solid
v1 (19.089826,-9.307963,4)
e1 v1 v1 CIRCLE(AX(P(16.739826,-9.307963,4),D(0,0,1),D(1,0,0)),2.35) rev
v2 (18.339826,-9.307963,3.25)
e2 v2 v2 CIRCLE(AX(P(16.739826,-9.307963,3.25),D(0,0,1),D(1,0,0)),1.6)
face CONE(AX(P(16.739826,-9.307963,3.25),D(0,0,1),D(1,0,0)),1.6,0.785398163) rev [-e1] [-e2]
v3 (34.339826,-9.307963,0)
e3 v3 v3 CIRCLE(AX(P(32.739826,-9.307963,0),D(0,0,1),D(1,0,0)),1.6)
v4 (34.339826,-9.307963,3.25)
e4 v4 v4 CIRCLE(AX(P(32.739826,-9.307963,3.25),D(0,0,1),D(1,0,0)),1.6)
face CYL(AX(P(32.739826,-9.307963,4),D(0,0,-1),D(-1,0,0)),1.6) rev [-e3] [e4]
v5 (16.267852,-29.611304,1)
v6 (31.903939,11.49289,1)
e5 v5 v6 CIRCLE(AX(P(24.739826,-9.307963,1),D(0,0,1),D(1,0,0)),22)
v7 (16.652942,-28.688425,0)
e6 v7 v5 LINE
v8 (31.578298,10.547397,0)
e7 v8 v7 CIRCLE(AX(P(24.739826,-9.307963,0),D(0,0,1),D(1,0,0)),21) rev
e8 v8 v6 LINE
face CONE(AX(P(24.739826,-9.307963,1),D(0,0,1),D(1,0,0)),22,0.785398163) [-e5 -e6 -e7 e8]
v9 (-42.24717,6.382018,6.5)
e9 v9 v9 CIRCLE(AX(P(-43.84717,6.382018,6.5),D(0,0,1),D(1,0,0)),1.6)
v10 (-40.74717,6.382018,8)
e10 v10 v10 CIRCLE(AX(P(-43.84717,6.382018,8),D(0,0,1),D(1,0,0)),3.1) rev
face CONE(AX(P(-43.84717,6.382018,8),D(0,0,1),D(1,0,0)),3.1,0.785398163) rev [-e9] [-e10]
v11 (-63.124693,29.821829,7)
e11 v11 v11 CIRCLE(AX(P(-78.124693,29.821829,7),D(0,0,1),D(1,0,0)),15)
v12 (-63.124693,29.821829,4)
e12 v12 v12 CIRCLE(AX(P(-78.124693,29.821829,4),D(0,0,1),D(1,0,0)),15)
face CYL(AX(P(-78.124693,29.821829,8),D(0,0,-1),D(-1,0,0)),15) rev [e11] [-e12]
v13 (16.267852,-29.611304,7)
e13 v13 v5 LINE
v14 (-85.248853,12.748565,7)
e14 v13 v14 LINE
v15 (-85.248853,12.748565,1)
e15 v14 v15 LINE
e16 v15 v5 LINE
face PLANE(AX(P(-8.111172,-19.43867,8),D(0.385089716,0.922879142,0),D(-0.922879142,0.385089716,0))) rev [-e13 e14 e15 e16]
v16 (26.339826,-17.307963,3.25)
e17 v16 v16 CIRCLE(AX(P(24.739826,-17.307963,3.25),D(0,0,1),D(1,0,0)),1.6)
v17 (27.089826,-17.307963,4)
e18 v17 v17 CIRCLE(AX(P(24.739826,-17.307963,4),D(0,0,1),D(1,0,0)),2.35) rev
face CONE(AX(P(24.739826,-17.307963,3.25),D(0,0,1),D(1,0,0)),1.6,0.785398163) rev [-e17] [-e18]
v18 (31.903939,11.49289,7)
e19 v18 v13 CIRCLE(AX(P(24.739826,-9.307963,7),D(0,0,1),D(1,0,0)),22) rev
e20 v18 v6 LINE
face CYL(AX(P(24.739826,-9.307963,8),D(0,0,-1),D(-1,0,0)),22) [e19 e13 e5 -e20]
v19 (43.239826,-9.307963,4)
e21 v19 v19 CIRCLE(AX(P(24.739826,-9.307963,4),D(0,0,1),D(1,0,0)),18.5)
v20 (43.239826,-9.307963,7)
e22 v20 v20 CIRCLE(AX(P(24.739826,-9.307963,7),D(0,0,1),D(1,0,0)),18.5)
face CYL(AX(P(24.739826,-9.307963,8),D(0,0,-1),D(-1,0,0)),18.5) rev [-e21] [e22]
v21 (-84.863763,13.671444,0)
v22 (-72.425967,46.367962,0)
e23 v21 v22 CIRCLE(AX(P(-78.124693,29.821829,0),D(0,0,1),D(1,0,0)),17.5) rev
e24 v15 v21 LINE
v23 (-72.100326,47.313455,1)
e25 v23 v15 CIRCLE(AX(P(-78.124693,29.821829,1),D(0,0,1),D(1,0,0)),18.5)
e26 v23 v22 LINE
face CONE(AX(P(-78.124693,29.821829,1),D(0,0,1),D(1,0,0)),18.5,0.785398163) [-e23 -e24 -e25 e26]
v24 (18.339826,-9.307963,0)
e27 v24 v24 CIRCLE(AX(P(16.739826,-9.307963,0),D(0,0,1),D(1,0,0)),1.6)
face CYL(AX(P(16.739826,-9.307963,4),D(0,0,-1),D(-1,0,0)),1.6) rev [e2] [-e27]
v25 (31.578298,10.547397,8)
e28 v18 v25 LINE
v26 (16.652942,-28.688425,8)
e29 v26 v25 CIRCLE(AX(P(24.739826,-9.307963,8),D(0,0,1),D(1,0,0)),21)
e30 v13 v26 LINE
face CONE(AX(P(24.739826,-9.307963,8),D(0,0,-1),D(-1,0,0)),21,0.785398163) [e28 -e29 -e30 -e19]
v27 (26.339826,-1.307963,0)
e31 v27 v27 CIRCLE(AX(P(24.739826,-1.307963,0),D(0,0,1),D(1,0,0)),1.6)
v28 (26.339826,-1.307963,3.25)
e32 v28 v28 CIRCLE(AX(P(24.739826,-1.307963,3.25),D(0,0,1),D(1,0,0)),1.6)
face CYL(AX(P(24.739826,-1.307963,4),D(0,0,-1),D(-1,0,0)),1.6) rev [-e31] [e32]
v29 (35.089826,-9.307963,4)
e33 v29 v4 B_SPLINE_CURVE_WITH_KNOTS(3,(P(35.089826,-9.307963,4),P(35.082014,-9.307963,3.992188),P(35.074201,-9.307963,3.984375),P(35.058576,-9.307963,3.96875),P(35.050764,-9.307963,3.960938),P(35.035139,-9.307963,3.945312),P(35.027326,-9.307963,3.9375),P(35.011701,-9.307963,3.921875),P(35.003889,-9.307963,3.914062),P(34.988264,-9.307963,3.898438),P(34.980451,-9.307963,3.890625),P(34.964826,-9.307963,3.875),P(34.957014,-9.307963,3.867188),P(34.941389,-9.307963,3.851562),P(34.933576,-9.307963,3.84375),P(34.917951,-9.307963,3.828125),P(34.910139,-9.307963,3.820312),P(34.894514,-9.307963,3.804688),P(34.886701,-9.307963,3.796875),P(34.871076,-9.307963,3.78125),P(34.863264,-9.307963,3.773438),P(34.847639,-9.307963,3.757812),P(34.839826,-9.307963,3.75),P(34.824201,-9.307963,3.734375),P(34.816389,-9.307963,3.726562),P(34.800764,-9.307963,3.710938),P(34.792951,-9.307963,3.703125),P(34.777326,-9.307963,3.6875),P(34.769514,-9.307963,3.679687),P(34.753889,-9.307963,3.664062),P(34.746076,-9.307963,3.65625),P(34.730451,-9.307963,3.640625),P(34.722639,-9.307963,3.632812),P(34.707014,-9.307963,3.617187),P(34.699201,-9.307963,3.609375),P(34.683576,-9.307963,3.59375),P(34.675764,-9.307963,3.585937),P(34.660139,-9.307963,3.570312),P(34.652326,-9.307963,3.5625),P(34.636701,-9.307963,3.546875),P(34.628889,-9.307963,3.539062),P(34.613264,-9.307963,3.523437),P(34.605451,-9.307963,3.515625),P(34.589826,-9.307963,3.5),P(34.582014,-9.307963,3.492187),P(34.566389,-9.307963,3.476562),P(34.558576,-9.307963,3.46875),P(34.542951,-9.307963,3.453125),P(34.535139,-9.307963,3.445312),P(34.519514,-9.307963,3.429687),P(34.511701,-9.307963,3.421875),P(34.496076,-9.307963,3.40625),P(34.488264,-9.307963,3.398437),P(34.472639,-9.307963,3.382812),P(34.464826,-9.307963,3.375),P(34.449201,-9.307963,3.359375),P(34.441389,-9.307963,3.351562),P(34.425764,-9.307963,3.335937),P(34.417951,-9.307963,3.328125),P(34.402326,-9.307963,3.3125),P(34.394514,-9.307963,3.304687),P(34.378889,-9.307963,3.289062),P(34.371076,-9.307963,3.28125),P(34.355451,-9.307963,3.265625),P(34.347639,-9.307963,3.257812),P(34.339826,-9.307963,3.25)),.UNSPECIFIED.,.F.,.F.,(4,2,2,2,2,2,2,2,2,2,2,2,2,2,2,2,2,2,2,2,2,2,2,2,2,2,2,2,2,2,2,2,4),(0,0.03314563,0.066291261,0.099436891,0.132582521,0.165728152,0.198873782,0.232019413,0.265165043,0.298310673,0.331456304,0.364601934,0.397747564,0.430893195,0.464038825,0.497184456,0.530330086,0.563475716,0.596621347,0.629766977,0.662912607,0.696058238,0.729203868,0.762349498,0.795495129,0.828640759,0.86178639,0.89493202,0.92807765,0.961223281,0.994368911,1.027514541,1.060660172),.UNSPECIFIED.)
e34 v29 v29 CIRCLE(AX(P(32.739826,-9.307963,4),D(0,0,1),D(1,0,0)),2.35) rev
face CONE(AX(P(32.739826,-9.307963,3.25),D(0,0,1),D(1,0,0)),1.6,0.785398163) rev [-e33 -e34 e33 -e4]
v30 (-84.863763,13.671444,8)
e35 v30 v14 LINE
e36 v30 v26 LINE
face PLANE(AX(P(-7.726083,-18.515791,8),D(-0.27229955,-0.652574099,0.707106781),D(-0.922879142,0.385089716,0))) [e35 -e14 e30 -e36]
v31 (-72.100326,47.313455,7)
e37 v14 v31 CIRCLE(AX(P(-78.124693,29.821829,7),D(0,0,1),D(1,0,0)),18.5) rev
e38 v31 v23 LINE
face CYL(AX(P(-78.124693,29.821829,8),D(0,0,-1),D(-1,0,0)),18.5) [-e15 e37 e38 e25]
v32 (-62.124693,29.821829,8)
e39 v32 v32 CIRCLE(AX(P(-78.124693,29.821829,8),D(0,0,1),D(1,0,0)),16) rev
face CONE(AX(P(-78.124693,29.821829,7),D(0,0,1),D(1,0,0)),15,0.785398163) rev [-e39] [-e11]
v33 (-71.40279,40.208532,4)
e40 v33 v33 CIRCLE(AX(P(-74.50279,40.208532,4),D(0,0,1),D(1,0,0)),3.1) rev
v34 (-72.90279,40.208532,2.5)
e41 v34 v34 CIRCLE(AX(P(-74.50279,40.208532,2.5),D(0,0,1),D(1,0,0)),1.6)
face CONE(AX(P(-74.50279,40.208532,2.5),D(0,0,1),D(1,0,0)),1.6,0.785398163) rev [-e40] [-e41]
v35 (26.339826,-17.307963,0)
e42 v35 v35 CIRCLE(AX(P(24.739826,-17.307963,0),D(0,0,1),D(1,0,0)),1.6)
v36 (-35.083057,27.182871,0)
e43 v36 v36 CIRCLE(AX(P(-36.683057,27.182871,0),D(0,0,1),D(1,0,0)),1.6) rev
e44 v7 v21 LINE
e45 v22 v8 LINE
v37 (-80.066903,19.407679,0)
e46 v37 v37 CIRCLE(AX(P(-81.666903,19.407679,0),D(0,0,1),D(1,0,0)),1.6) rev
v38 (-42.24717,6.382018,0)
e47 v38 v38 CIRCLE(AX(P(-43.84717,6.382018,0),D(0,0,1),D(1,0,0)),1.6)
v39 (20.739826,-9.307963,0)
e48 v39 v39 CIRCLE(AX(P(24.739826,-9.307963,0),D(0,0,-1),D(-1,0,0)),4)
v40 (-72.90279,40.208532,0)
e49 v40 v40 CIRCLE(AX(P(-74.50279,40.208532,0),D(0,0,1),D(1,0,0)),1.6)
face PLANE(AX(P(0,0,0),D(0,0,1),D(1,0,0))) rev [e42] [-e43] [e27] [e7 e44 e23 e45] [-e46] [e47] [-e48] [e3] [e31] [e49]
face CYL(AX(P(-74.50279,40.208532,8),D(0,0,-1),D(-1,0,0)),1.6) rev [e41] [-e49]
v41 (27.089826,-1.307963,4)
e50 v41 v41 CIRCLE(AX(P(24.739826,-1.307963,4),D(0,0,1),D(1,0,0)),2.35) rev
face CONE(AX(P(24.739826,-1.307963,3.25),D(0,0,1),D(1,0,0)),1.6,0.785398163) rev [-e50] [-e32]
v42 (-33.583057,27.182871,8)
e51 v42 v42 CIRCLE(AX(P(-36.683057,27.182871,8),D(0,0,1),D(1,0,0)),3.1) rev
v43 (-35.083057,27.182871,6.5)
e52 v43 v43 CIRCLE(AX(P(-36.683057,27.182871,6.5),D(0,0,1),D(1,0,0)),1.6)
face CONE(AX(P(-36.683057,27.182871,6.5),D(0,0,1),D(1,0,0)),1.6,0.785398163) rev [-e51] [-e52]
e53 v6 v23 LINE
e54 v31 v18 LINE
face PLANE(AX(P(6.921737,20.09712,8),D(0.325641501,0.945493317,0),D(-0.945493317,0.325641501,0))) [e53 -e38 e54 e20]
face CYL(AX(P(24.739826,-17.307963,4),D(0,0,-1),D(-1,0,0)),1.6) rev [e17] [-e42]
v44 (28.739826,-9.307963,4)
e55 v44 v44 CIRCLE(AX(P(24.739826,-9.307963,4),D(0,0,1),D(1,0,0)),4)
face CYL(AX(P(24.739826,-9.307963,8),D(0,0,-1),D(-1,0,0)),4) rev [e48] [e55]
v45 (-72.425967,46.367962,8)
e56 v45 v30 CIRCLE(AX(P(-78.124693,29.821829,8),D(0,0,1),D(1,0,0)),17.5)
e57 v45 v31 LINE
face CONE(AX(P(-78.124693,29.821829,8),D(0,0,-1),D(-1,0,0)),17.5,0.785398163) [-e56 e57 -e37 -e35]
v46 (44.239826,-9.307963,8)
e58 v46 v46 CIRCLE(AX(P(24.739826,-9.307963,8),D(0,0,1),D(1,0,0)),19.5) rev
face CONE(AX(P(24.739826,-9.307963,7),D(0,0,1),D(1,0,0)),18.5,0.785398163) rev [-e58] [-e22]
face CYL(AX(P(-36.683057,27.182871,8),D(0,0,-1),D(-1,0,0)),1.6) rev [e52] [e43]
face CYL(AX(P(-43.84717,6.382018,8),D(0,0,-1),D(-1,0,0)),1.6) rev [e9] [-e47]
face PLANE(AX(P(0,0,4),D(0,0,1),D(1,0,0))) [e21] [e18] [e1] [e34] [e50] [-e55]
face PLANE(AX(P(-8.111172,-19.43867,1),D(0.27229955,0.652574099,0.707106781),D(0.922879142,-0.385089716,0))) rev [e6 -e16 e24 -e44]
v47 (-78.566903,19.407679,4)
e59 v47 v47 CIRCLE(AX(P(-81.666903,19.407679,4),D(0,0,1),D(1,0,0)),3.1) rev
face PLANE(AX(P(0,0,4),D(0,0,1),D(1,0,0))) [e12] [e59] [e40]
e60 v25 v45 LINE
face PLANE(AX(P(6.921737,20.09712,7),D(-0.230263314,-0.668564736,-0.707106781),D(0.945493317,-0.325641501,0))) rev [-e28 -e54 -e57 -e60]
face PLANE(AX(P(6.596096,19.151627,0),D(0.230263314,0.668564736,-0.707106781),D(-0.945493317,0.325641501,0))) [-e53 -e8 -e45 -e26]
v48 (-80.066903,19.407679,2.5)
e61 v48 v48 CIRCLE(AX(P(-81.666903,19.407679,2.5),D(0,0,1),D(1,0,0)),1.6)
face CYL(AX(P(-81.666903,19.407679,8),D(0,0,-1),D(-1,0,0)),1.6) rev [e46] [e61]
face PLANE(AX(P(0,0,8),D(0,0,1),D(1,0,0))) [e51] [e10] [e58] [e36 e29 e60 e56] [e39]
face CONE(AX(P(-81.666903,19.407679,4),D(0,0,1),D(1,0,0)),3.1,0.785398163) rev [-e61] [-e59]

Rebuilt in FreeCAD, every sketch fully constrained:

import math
import FreeCAD as App
import Part
import Sketcher


def edges_at(feature, points):
    """Names of the edges that pass closest to the given points."""
    edges = feature.Shape.Edges
    near = lambda p: min(range(len(edges)), key=lambda i: edges[i].distToShape(Part.Vertex(*p))[0])
    return sorted({f"Edge{near(p) + 1}" for p in points})

doc = App.newDocument("Part")
body = doc.addObject("PartDesign::Body", "Body")

sketch1 = doc.addObject("Sketcher::SketchObject", "Sketch")
body.addObject(sketch1)
sketch1.AttachmentSupport = (doc.XY_Plane, [""])
sketch1.MapMode = "FlatFace"
sketch1.addGeometry([
    Part.LineSegment(App.Vector(-85.248853, 12.748565, 0), App.Vector(16.267852, -29.611304, 0)),
    Part.ArcOfCircle(Part.Circle(App.Vector(24.739826, -9.307963, 0), App.Vector(0, 0, 1), 22), math.radians(-112.64931), math.radians(70.995555)),
    Part.LineSegment(App.Vector(31.903939, 11.49289, 0), App.Vector(-72.100326, 47.313455, 0)),
    Part.ArcOfCircle(Part.Circle(App.Vector(-78.124693, 29.821829, 0), App.Vector(0, 0, 1), 18.5), math.radians(70.995555), math.radians(247.35069)),
    Part.Circle(App.Vector(24.739826, -9.307963, 0), App.Vector(0, 0, 1), 18.5),
    Part.Circle(App.Vector(-78.124693, 29.821829, 0), App.Vector(0, 0, 1), 15),
], False)
sketch1.addConstraint([
    Sketcher.Constraint("Tangent", 0, 2, 1, 1),
    Sketcher.Constraint("Tangent", 1, 2, 2, 1),
    Sketcher.Constraint("Tangent", 2, 2, 3, 1),
    Sketcher.Constraint("Tangent", 3, 2, 0, 1),
    Sketcher.Constraint("Coincident", 4, 3, 1, 3),
    Sketcher.Constraint("Coincident", 5, 3, 3, 3),
    Sketcher.Constraint("Equal", 3, 4),
    Sketcher.Constraint("Diameter", 4, 37.0),
    Sketcher.Constraint("Diameter", 5, 30.0),
    Sketcher.Constraint("Radius", 1, 22.0),
    Sketcher.Constraint("Distance", 0, 110.0),
    Sketcher.Constraint("DistanceY", -1, 1, 3, 3, 29.821829),
    Sketcher.Constraint("DistanceX", -1, 1, 1, 2, 31.903939),
    Sketcher.Constraint("DistanceY", -1, 1, 1, 2, 11.49289),
])
pad1 = doc.addObject("PartDesign::Pad", "Pad")
body.addObject(pad1)
pad1.Profile = sketch1
pad1.Length = 8

sketch2 = doc.addObject("Sketcher::SketchObject", "Sketch001")
body.addObject(sketch2)
sketch2.AttachmentSupport = (doc.XY_Plane, [""])
sketch2.MapMode = "FlatFace"
sketch2.addGeometry([
    Part.Circle(App.Vector(24.739826, -9.307963, 0), App.Vector(0, 0, 1), 18.5),
    Part.Circle(App.Vector(24.739826, -17.307963, 0), App.Vector(0, 0, 1), 1.6),
    Part.Circle(App.Vector(16.739826, -9.307963, 0), App.Vector(0, 0, 1), 1.6),
    Part.Circle(App.Vector(32.739826, -9.307963, 0), App.Vector(0, 0, 1), 1.6),
    Part.Circle(App.Vector(24.739826, -1.307963, 0), App.Vector(0, 0, 1), 1.6),
    Part.Circle(App.Vector(-78.124693, 29.821829, 0), App.Vector(0, 0, 1), 15),
], False)
sketch2.addConstraint([
    Sketcher.Constraint("Equal", 1, 2),
    Sketcher.Constraint("Equal", 2, 3),
    Sketcher.Constraint("Equal", 3, 4),
    Sketcher.Constraint("Horizontal", 0, 3, 2, 3),
    Sketcher.Constraint("Horizontal", 2, 3, 3, 3),
    Sketcher.Constraint("Vertical", 0, 3, 1, 3),
    Sketcher.Constraint("Vertical", 1, 3, 4, 3),
    Sketcher.Constraint("Diameter", 0, 37.0),
    Sketcher.Constraint("Diameter", 5, 30.0),
    Sketcher.Constraint("Diameter", 1, 3.2),
    Sketcher.Constraint("DistanceY", 1, 3, 0, 3, 8.0),
    Sketcher.Constraint("DistanceX", 2, 3, 0, 3, 8.0),
    Sketcher.Constraint("DistanceX", 0, 3, 3, 3, 8.0),
    Sketcher.Constraint("DistanceY", 0, 3, 4, 3, 8.0),
    Sketcher.Constraint("DistanceY", -1, 1, 5, 3, 29.821829),
    Sketcher.Constraint("DistanceX", 5, 3, 2, 3, 94.86452),
    Sketcher.Constraint("DistanceY", 2, 3, 5, 3, 39.129792),
    Sketcher.Constraint("DistanceX", -1, 1, 0, 3, 24.739826),
])
pad2 = doc.addObject("PartDesign::Pad", "Pad001")
body.addObject(pad2)
pad2.Profile = sketch2
pad2.Length = 4
doc.recompute()

chamfer = doc.addObject("PartDesign::Chamfer", "Chamfer")
body.addObject(chamfer)
chamfer.Base = (pad2, edges_at(pad2, [
    (23.14, -17.308, 4),
    (31.14, -9.308, 4),
    (15.14, -9.308, 4),
    (23.14, -1.308, 4),
]))
chamfer.Size = 0.75
doc.recompute()

chamfer2 = doc.addObject("PartDesign::Chamfer", "Chamfer001")
body.addObject(chamfer2)
chamfer2.Base = (chamfer, edges_at(chamfer, [(6.24, -9.308, 8), (-93.125, 29.822, 8)]))
chamfer2.Size = 1

sketch3 = doc.addObject("Sketcher::SketchObject", "Sketch002")
body.addObject(sketch3)
sketch3.AttachmentSupport = (doc.XY_Plane, [""])
sketch3.MapMode = "FlatFace"
sketch3.addGeometry(Part.Circle(App.Vector(24.739826, -9.307963, 0), App.Vector(0, 0, 1), 4), False)
sketch3.addConstraint([
    Sketcher.Constraint("Diameter", 0, 8.0),
    Sketcher.Constraint("DistanceX", -1, 1, 0, 3, 24.739826),
    Sketcher.Constraint("DistanceY", 0, 3, -1, 1, 9.307963),
])
pocket1 = doc.addObject("PartDesign::Pocket", "Pocket")
body.addObject(pocket1)
pocket1.Profile = sketch3
pocket1.Type = "ThroughAll"
pocket1.Reversed = True

sketch4 = doc.addObject("Sketcher::SketchObject", "Sketch003")
body.addObject(sketch4)
sketch4.AttachmentSupport = (doc.XY_Plane, [""])
sketch4.MapMode = "FlatFace"
sketch4.addGeometry([
    Part.Circle(App.Vector(-36.683057, 27.182871, 0), App.Vector(0, 0, 1), 1.6),
    Part.Circle(App.Vector(-74.50279, 40.208532, 0), App.Vector(0, 0, 1), 1.6),
    Part.Circle(App.Vector(-81.666903, 19.407679, 0), App.Vector(0, 0, 1), 1.6),
    Part.Circle(App.Vector(-43.84717, 6.382018, 0), App.Vector(0, 0, 1), 1.6),
], False)
sketch4.addConstraint([
    Sketcher.Constraint("Equal", 0, 1),
    Sketcher.Constraint("Equal", 1, 2),
    Sketcher.Constraint("Equal", 2, 3),
    Sketcher.Constraint("Diameter", 0, 3.2),
    Sketcher.Constraint("DistanceY", -1, 1, 0, 3, 27.182871),
    Sketcher.Constraint("DistanceX", 1, 3, -1, 1, 74.50279),
    Sketcher.Constraint("DistanceY", -1, 1, 1, 3, 40.208532),
    Sketcher.Constraint("DistanceY", -1, 1, 2, 3, 19.407679),
    Sketcher.Constraint("DistanceX", 3, 3, -1, 1, 43.84717),
    Sketcher.Constraint("DistanceY", -1, 1, 3, 3, 6.382018),
    Sketcher.Constraint("DistanceX", 0, 3, -1, 1, 36.683057),
    Sketcher.Constraint("DistanceX", 2, 3, -1, 1, 81.666903),
])
pocket2 = doc.addObject("PartDesign::Pocket", "Pocket001")
body.addObject(pocket2)
pocket2.Profile = sketch4
pocket2.Type = "ThroughAll"
pocket2.Midplane = True
doc.recompute()

chamfer3 = doc.addObject("PartDesign::Chamfer", "Chamfer002")
body.addObject(chamfer3)
chamfer3.Base = (pocket2, edges_at(pocket2, [
    (-35.083, 27.183, 8),
    (-76.103, 40.209, 4),
    (-83.267, 19.408, 4),
    (-42.247, 6.382, 8),
]))
chamfer3.Size = 1.5
doc.recompute()

chamfer4 = doc.addObject("PartDesign::Chamfer", "Chamfer003")
body.addObject(chamfer4)
chamfer4.Base = (chamfer3, edges_at(chamfer3, [
    (-34.491, -8.431, 8),
    (45.302, -17.13, 8),
    (-20.098, 29.403, 8),
    (-95.416, 36.399, 8),
    (-95.416, 36.399, 0),
    (-20.098, 29.403, 0),
    (45.302, -17.13, 0),
    (-34.491, -8.431, 0),
]))
chamfer4.Size = 1

doc.recompute()
